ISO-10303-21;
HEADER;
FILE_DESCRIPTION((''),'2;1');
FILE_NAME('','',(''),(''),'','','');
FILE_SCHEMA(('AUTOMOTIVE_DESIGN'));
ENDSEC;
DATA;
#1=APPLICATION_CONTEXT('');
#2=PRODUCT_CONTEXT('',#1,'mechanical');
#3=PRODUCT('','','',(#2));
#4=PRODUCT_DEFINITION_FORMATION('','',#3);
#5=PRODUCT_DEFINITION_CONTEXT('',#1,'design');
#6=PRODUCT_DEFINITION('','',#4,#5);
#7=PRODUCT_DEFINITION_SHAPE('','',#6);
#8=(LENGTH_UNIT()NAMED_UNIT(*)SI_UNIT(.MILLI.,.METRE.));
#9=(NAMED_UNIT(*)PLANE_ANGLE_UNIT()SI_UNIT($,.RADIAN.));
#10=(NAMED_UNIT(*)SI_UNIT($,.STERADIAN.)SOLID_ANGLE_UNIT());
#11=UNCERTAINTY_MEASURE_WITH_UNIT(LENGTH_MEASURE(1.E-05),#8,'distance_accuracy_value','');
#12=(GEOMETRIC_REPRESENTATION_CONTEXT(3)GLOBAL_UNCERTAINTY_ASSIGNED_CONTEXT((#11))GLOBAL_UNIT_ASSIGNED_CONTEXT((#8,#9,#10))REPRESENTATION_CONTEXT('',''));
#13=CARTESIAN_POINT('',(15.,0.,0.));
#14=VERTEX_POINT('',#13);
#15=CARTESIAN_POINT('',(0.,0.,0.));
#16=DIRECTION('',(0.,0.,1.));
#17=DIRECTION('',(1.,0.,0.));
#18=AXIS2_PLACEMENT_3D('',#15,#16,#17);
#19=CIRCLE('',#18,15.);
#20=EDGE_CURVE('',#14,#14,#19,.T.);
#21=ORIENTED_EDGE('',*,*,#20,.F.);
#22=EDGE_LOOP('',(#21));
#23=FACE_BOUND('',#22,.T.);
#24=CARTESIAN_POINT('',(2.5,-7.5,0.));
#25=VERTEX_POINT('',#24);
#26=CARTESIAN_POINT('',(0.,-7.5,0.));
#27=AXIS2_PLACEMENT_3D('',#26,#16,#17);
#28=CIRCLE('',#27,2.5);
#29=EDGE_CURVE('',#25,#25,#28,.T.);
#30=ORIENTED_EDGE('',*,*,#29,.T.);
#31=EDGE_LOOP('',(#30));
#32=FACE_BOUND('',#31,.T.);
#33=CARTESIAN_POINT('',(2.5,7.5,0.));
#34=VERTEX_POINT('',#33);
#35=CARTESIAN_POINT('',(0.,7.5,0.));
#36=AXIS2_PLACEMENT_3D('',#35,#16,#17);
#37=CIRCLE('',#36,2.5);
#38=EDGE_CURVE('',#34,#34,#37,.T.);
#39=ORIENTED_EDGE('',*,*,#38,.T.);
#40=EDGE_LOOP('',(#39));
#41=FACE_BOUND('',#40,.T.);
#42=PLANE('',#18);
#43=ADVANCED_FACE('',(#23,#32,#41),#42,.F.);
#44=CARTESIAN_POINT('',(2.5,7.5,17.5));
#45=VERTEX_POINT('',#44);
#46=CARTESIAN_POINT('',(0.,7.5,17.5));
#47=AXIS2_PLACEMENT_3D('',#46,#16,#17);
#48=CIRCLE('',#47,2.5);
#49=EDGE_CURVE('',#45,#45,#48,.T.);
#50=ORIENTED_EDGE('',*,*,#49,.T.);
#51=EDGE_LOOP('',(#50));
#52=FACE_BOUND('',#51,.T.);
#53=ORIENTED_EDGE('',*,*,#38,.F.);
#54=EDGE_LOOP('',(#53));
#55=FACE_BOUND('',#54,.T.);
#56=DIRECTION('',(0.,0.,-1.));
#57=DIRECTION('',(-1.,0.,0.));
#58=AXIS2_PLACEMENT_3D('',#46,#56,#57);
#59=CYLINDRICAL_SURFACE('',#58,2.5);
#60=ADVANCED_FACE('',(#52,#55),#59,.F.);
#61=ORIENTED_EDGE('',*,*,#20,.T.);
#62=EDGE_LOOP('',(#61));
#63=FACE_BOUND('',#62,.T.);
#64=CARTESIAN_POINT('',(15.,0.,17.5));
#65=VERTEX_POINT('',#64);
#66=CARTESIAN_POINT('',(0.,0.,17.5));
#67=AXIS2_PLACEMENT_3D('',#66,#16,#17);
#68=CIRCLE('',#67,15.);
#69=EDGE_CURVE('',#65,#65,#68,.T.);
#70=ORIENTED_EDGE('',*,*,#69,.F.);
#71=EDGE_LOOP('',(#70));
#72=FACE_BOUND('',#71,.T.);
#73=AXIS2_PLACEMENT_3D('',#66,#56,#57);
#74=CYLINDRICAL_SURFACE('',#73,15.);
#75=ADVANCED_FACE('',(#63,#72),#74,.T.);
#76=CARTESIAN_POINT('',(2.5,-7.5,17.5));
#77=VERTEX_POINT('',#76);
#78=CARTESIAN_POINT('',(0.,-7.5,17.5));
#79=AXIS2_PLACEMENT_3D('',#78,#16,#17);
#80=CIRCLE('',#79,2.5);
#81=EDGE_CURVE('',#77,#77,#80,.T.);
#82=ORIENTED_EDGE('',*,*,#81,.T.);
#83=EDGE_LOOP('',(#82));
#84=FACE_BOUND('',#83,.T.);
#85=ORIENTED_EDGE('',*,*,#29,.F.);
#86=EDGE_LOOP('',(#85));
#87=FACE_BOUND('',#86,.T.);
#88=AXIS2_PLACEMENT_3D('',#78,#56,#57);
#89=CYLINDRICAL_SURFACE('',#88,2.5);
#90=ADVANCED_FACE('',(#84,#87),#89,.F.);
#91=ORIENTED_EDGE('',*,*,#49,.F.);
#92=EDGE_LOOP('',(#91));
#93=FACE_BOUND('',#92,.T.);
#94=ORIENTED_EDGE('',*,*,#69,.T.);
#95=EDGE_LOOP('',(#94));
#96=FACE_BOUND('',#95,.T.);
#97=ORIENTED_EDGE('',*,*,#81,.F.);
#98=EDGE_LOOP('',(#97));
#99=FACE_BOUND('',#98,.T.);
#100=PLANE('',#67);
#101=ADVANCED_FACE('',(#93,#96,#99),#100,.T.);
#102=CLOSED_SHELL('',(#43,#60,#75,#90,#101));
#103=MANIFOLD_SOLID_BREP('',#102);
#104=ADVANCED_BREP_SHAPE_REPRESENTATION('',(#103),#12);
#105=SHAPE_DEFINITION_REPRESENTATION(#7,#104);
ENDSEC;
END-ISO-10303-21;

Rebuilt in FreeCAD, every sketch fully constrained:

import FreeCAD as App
import Part
import Sketcher
Q = App.Units.Quantity

doc = App.newDocument("Part")
body = doc.addObject("PartDesign::Body", "Body")

sketch1 = doc.addObject("Sketcher::SketchObject", "Sketch")
body.addObject(sketch1)
sketch1.AttachmentSupport = (doc.XY_Plane, [""])
sketch1.MapMode = "FlatFace"
sketch1.addGeometry([
    Part.Circle(App.Vector(0, 0, 0), App.Vector(0, 0, 1), 15),
    Part.Circle(App.Vector(0, -7.5, 0), App.Vector(0, 0, 1), 2.5),
    Part.Circle(App.Vector(0, 7.5, 0), App.Vector(0, 0, 1), 2.5),
], False)
sketch1.addConstraint([
    Sketcher.Constraint("Coincident", 0, 3, -1, 1),
    Sketcher.Constraint("Equal", 1, 2),
    Sketcher.Constraint("Symmetric", 1, 3, 2, 3, -1, 1),
    Sketcher.Constraint("PointOnObject", 1, 3, -2),
    Sketcher.Constraint("Diameter", 0, Q("30 mm")),
    Sketcher.Constraint("Diameter", 1, Q("5 mm")),
    Sketcher.Constraint("DistanceY", 1, 3, 2, 3, Q("15 mm")),
])
pad1 = doc.addObject("PartDesign::Pad", "Pad")
body.addObject(pad1)
pad1.Profile = sketch1
pad1.Length = 17.5

doc.recompute()
